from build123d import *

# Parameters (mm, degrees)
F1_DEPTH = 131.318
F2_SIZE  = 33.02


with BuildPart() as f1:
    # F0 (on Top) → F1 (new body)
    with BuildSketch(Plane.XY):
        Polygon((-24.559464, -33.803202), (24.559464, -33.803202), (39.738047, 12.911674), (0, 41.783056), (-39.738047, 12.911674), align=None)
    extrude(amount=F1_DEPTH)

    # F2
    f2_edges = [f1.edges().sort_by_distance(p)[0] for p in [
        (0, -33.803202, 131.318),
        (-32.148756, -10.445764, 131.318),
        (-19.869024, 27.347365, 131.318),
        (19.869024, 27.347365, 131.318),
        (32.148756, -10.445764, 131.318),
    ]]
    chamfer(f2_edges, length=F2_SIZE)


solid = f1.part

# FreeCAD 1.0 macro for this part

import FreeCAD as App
import Part
import Sketcher

V = App.Vector
Q = App.Units.Quantity


def edges_at(feature, points):
    """Names of the edges that pass closest to the given points."""
    edges = feature.Shape.Edges
    near = lambda p: min(range(len(edges)), key=lambda i: edges[i].distToShape(Part.Vertex(*p))[0])
    return sorted({f"Edge{near(p) + 1}" for p in points})

doc = App.newDocument("Part")
params = doc.addObject("Spreadsheet::Sheet", "Params")
for row, (alias, value) in enumerate([
    ("pad1_length", "5.17 in"),
    ("chamfer_size", "1.3 in"),
], start=1):
    params.set(f"A{row}", alias)
    params.set(f"B{row}", "=" + value)
    params.setAlias(f"B{row}", alias)

body = doc.addObject("PartDesign::Body", "Body")

sketch1 = body.newObject("Sketcher::SketchObject", "Sketch")
sketch1.AttachmentSupport = (doc.getObject("XY_Plane"), [""])
sketch1.MapMode = "FlatFace"
sketch1.addGeometry(Part.LineSegment(V(-25, -34, 0), V(25, -34, 0)), False)
sketch1.addGeometry(Part.LineSegment(V(25, -34, 0), V(40, 13, 0)), False)
sketch1.addGeometry(Part.LineSegment(V(40, 13, 0), V(0, 42, 0)), False)
sketch1.addGeometry(Part.LineSegment(V(0, 42, 0), V(-40, 13, 0)), False)
sketch1.addGeometry(Part.LineSegment(V(-40, 13, 0), V(-25, -34, 0)), False)
sketch1.addConstraint(Sketcher.Constraint("Coincident", 0, 2, 1, 1))
sketch1.addConstraint(Sketcher.Constraint("Coincident", 1, 2, 2, 1))
sketch1.addConstraint(Sketcher.Constraint("Coincident", 2, 2, 3, 1))
sketch1.addConstraint(Sketcher.Constraint("Coincident", 3, 2, 4, 1))
sketch1.addConstraint(Sketcher.Constraint("Coincident", 4, 2, 0, 1))
sketch1.addConstraint(Sketcher.Constraint("Horizontal", 0))
sketch1.addConstraint(Sketcher.Constraint("Symmetric", 1, 2, 3, 2, -2))
sketch1.addConstraint(Sketcher.Constraint("PointOnObject", 2, 2, -2))
sketch1.addConstraint(Sketcher.Constraint("Equal", 1, 2))
sketch1.addConstraint(Sketcher.Constraint("Equal", 3, 4))
sketch1.addConstraint(Sketcher.Constraint("Angle", 1, Q("72 deg")))
sketch1.addConstraint(Sketcher.Constraint("Angle", 2, Q("143.999999 deg")))
sketch1.addConstraint(Sketcher.Constraint("DistanceX", 0, 1, 0, 2, 49.118928))
sketch1.addConstraint(Sketcher.Constraint("DistanceY", 0, 2, -1, 1, 33.803202))
pad1 = body.newObject("PartDesign::Pad", "Pad")
pad1.Profile = sketch1
pad1.setExpression("Length", "Params.pad1_length")
doc.recompute()

chamfer = body.newObject("PartDesign::Chamfer", "Chamfer")
chamfer.Base = (pad1, edges_at(pad1, [
    (0, -33.803, 131.318),
    (-32.149, -10.446, 131.318),
    (-19.869, 27.347, 131.318),
    (19.869, 27.347, 131.318),
    (32.149, -10.446, 131.318),
]))
chamfer.setExpression("Size", "Params.chamfer_size")

doc.recompute()
